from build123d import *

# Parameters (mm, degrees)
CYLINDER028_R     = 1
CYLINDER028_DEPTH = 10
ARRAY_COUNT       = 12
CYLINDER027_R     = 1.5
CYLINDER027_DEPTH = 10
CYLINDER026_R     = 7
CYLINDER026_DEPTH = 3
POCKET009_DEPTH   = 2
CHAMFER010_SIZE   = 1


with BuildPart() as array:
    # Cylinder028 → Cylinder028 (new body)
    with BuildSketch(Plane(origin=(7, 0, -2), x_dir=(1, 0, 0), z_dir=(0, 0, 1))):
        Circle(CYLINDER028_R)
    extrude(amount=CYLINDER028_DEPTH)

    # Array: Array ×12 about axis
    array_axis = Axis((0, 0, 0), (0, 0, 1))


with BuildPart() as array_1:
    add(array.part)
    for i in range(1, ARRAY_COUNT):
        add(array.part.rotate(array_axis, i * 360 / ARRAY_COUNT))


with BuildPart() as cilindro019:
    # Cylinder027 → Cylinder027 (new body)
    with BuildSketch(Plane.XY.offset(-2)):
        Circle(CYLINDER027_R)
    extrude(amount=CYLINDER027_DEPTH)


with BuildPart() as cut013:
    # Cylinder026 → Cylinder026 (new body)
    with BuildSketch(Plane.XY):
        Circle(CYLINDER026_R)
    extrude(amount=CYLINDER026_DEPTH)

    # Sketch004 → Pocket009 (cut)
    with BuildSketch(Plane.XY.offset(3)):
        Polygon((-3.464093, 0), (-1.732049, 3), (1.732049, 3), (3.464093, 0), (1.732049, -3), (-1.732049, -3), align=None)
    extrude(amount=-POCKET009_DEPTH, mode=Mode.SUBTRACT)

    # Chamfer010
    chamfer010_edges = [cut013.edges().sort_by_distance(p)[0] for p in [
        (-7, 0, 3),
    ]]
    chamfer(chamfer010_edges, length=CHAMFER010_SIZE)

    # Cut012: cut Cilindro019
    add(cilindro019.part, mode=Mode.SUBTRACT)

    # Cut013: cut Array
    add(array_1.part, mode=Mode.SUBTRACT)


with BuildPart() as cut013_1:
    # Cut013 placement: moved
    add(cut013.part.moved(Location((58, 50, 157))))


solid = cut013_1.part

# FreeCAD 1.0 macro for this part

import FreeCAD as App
import Part
import Sketcher

V = App.Vector


def edges_at(feature, points):
    """Names of the edges that pass closest to the given points."""
    edges = feature.Shape.Edges
    near = lambda p: min(range(len(edges)), key=lambda i: edges[i].distToShape(Part.Vertex(*p))[0])
    return sorted({f"Edge{near(p) + 1}" for p in points})


def add_polygon(sketch, points):
    """Adds a closed chain of lines whose ends are joined by coincident constraints."""
    first, n = sketch.GeometryCount, len(points)
    for a, b in zip(points, points[1:] + points[:1]):
        sketch.addGeometry(Part.LineSegment(App.Vector(*a, 0), App.Vector(*b, 0)), False)
    for i in range(n):
        sketch.addConstraint(Sketcher.Constraint("Coincident", first + i, 2, first + (i + 1) % n, 1))

doc = App.newDocument("Part")
params = doc.addObject("Spreadsheet::Sheet", "Params")
for row, (alias, value) in enumerate([
    ("sketch1_diameter", "2 mm"),
    ("pad1_length", "10 mm"),
    ("sketch2_diameter", "3 mm"),
    ("pad2_length", "10 mm"),
    ("sketch3_diameter", "14 mm"),
    ("pad3_length", "3 mm"),
    ("pocket1_length", "2 mm"),
    ("chamfer_size", "1 mm"),
], start=1):
    params.set(f"A{row}", alias)
    params.set(f"B{row}", "=" + value)
    params.setAlias(f"B{row}", alias)

body = doc.addObject("PartDesign::Body", "Body")

sketch1 = body.newObject("Sketcher::SketchObject", "Sketch")
sketch1.AttachmentSupport = (doc.getObject("XY_Plane"), [""])
sketch1.MapMode = "FlatFace"
sketch1.AttachmentOffset = App.Placement(V(0, 0, -2), App.Rotation())
sketch1.addGeometry(Part.Circle(V(7, 0, 0), V(0, 0, 1), 1), False)
sketch1.addConstraint([
    Sketcher.Constraint("PointOnObject", 0, 3, -1),
    Sketcher.Constraint("Diameter", 0, 2.0),
    Sketcher.Constraint("DistanceX", -1, 1, 0, 3, 7.0),
])
sketch1.setExpression("Constraints[1]", "Params.sketch1_diameter")
pad1 = body.newObject("PartDesign::Pad", "Pad")
pad1.Profile = sketch1
pad1.setExpression("Length", "Params.pad1_length")
body2 = doc.addObject("PartDesign::Body", "Body001")
body2.AllowCompound = True
doc.recompute()

body2.BaseFeature = body
doc.recompute()

body3 = doc.addObject("PartDesign::Body", "Body002")
body3.BaseFeature = body
body3.Placement = App.Placement(V(0, 0, 0), App.Rotation(V(0, 0, 1), 30))
boolean = body2.newObject("PartDesign::Boolean", "Boolean")
boolean.Type = "Fuse"
boolean.addObjects([body3])
doc.recompute()

body4 = doc.addObject("PartDesign::Body", "Body003")
body4.BaseFeature = body
body4.Placement = App.Placement(V(0, 0, 0), App.Rotation(V(0, 0, 1), 60))
boolean2 = body2.newObject("PartDesign::Boolean", "Boolean001")
boolean2.Type = "Fuse"
boolean2.addObjects([body4])
doc.recompute()

body5 = doc.addObject("PartDesign::Body", "Body004")
body5.BaseFeature = body
body5.Placement = App.Placement(V(0, 0, 0), App.Rotation(V(0, 0, 1), 90))
boolean3 = body2.newObject("PartDesign::Boolean", "Boolean002")
boolean3.Type = "Fuse"
boolean3.addObjects([body5])
doc.recompute()

body6 = doc.addObject("PartDesign::Body", "Body005")
body6.BaseFeature = body
body6.Placement = App.Placement(V(0, 0, 0), App.Rotation(V(0, 0, 1), 120))
boolean4 = body2.newObject("PartDesign::Boolean", "Boolean003")
boolean4.Type = "Fuse"
boolean4.addObjects([body6])
doc.recompute()

body7 = doc.addObject("PartDesign::Body", "Body006")
body7.BaseFeature = body
body7.Placement = App.Placement(V(0, 0, 0), App.Rotation(V(0, 0, 1), 150))
boolean5 = body2.newObject("PartDesign::Boolean", "Boolean004")
boolean5.Type = "Fuse"
boolean5.addObjects([body7])
doc.recompute()

body8 = doc.addObject("PartDesign::Body", "Body007")
body8.BaseFeature = body
body8.Placement = App.Placement(V(0, 0, 0), App.Rotation(V(0, 0, 1), 180))
boolean6 = body2.newObject("PartDesign::Boolean", "Boolean005")
boolean6.Type = "Fuse"
boolean6.addObjects([body8])
doc.recompute()

body9 = doc.addObject("PartDesign::Body", "Body008")
body9.BaseFeature = body
body9.Placement = App.Placement(V(0, 0, 0), App.Rotation(V(0, 0, 1), 210))
boolean7 = body2.newObject("PartDesign::Boolean", "Boolean006")
boolean7.Type = "Fuse"
boolean7.addObjects([body9])
doc.recompute()

body10 = doc.addObject("PartDesign::Body", "Body009")
body10.BaseFeature = body
body10.Placement = App.Placement(V(0, 0, 0), App.Rotation(V(0, 0, 1), 240))
boolean8 = body2.newObject("PartDesign::Boolean", "Boolean007")
boolean8.Type = "Fuse"
boolean8.addObjects([body10])
doc.recompute()

body11 = doc.addObject("PartDesign::Body", "Body010")
body11.BaseFeature = body
body11.Placement = App.Placement(V(0, 0, 0), App.Rotation(V(0, 0, 1), 270))
boolean9 = body2.newObject("PartDesign::Boolean", "Boolean008")
boolean9.Type = "Fuse"
boolean9.addObjects([body11])
doc.recompute()

body12 = doc.addObject("PartDesign::Body", "Body011")
body12.BaseFeature = body
body12.Placement = App.Placement(V(0, 0, 0), App.Rotation(V(0, 0, 1), 300))
boolean10 = body2.newObject("PartDesign::Boolean", "Boolean009")
boolean10.Type = "Fuse"
boolean10.addObjects([body12])
doc.recompute()

body.Placement = App.Placement(V(0, 0, 0), App.Rotation(V(0, 0, 1), 330))
boolean11 = body2.newObject("PartDesign::Boolean", "Boolean010")
boolean11.Type = "Fuse"
boolean11.addObjects([body])
body13 = doc.addObject("PartDesign::Body", "Body012")

sketch2 = body13.newObject("Sketcher::SketchObject", "Sketch001")
sketch2.AttachmentSupport = (doc.getObject("XY_Plane012"), [""])
sketch2.MapMode = "FlatFace"
sketch2.AttachmentOffset = App.Placement(V(0, 0, -2), App.Rotation())
sketch2.addGeometry(Part.Circle(V(0, 0, 0), V(0, 0, 1), 1.5), False)
sketch2.addConstraint([
    Sketcher.Constraint("Coincident", 0, 3, -1, 1),
    Sketcher.Constraint("Diameter", 0, 3.0),
])
sketch2.setExpression("Constraints[1]", "Params.sketch2_diameter")
pad2 = body13.newObject("PartDesign::Pad", "Pad001")
pad2.Profile = sketch2
pad2.setExpression("Length", "Params.pad2_length")
body14 = doc.addObject("PartDesign::Body", "Body013")

sketch3 = body14.newObject("Sketcher::SketchObject", "Sketch002")
sketch3.AttachmentSupport = (doc.getObject("XY_Plane013"), [""])
sketch3.MapMode = "FlatFace"
sketch3.addGeometry(Part.Circle(V(0, 0, 0), V(0, 0, 1), 7), False)
sketch3.addConstraint([
    Sketcher.Constraint("Coincident", 0, 3, -1, 1),
    Sketcher.Constraint("Diameter", 0, 14.0),
])
sketch3.setExpression("Constraints[1]", "Params.sketch3_diameter")
pad3 = body14.newObject("PartDesign::Pad", "Pad002")
pad3.Profile = sketch3
pad3.setExpression("Length", "Params.pad3_length")

sketch4 = body14.newObject("Sketcher::SketchObject", "Sketch003")
sketch4.AttachmentSupport = (doc.getObject("XY_Plane013"), [""])
sketch4.MapMode = "FlatFace"
sketch4.AttachmentOffset = App.Placement(V(0, 0, 3), App.Rotation())
add_polygon(sketch4, [(-1.7, 3), (-3.5, 0), (-1.7, -3), (1.7, -3), (3.5, 0), (1.7, 3)])
sketch4.addConstraint([
    Sketcher.Constraint("Horizontal", 2),
    Sketcher.Constraint("Horizontal", 5),
    Sketcher.Constraint("Symmetric", 0, 2, 3, 2, -1, 1),
    Sketcher.Constraint("Symmetric", 1, 2, 4, 2, -1, 1),
    Sketcher.Constraint("PointOnObject", 0, 2, -1),
    Sketcher.Constraint("Parallel", 0, 3),
    Sketcher.Constraint("Vertical", 2, 2, 4, 2),
    Sketcher.Constraint("DistanceY", 1, 2, -1, 1, 3.0),
    Sketcher.Constraint("Distance", 0, 3.464098),
    Sketcher.Constraint("DistanceX", 2, 1, 2, 2, 3.464098),
])
pocket1 = body14.newObject("PartDesign::Pocket", "Pocket")
pocket1.Profile = sketch4
pocket1.setExpression("Length", "Params.pocket1_length")
doc.recompute()

chamfer = body14.newObject("PartDesign::Chamfer", "Chamfer")
chamfer.Base = (pocket1, edges_at(pocket1, [(-7, 0, 3)]))
chamfer.setExpression("Size", "Params.chamfer_size")
doc.recompute()

boolean12 = body14.newObject("PartDesign::Boolean", "Boolean011")
boolean12.Type = "Cut"
boolean12.addObjects([body13])
doc.recompute()

boolean13 = body14.newObject("PartDesign::Boolean", "Boolean012")
boolean13.Type = "Cut"
boolean13.addObjects([body2])
body15 = doc.addObject("PartDesign::Body", "Body014")
doc.recompute()

body14.Placement = App.Placement(V(58, 50, 157), App.Rotation(V(0, 0, 1), 0))
boolean14 = body15.newObject("PartDesign::Boolean", "Boolean013")
boolean14.Type = "Fuse"
boolean14.addObjects([body14])

doc.recompute()
